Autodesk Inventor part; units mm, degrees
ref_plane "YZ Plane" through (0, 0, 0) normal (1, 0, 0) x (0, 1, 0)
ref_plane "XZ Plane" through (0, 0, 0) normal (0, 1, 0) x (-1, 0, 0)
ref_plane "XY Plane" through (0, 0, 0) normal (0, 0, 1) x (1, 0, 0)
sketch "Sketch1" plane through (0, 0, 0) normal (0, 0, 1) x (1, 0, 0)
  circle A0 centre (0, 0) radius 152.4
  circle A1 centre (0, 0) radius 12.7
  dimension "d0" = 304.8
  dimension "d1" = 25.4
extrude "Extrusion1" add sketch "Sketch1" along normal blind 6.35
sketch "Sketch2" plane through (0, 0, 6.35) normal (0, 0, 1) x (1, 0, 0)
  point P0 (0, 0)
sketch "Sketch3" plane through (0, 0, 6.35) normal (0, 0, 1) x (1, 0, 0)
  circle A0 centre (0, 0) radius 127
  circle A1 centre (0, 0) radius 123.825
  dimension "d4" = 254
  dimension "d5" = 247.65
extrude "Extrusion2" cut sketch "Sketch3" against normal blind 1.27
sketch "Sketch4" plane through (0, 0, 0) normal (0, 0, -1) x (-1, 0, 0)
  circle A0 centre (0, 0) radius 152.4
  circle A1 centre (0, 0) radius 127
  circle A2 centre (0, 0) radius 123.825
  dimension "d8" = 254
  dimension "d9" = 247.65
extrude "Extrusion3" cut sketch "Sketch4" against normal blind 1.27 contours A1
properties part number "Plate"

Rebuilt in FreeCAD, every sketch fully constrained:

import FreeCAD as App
import Part
import Sketcher
from FreeCAD import Vector
Q = App.Units.Quantity

doc = App.newDocument("Part")
body = doc.addObject("PartDesign::Body", "Body")

# Sketch on XY plane
sketch1 = doc.addObject("Sketcher::SketchObject", "Sketch")
body.addObject(sketch1)
sketch1.AttachmentSupport = (doc.XY_Plane, [""])
sketch1.MapMode = "FlatFace"
sketch1.addGeometry(Part.Circle(Vector(0, 0, 0), Vector(0, 0, 1), 152), False)
sketch1.addGeometry(Part.Circle(Vector(0, 0, 0), Vector(0, 0, 1), 13), False)
sketch1.addConstraint(Sketcher.Constraint("Coincident", 0, 3, -1, 1))
sketch1.addConstraint(Sketcher.Constraint("Coincident", 1, 3, -1, 1))
sketch1.addConstraint(Sketcher.Constraint("Diameter", 0, Q("12 in")))
sketch1.addConstraint(Sketcher.Constraint("Diameter", 1, Q("1 in")))
pad1 = doc.addObject("PartDesign::Pad", "Pad")
body.addObject(pad1)
pad1.Profile = sketch1
pad1.Length = Q("0.25 in")

# Sketch on XY plane
sketch2 = doc.addObject("Sketcher::SketchObject", "Sketch001")
body.addObject(sketch2)
sketch2.AttachmentSupport = (doc.XY_Plane, [""])
sketch2.MapMode = "FlatFace"
sketch2.AttachmentOffset = App.Placement(Vector(0, 0, 0.25 * 25.4), App.Rotation())
sketch2.addGeometry(Part.Circle(Vector(0, 0, 0), Vector(0, 0, 1), 127), False)
sketch2.addGeometry(Part.Circle(Vector(0, 0, 0), Vector(0, 0, 1), 124), False)
sketch2.addConstraint(Sketcher.Constraint("Coincident", 0, 3, -1, 1))
sketch2.addConstraint(Sketcher.Constraint("Coincident", 1, 3, -1, 1))
sketch2.addConstraint(Sketcher.Constraint("Diameter", 0, Q("10 in")))
sketch2.addConstraint(Sketcher.Constraint("Diameter", 1, Q("9.75 in")))
pocket1 = doc.addObject("PartDesign::Pocket", "Pocket")
body.addObject(pocket1)
pocket1.Profile = sketch2
pocket1.Length = Q("0.05 in")

# Sketch on XY plane
sketch3 = doc.addObject("Sketcher::SketchObject", "Sketch002")
body.addObject(sketch3)
sketch3.AttachmentSupport = (doc.XY_Plane, [""])
sketch3.MapMode = "FlatFace"
sketch3.addGeometry(Part.Circle(Vector(0, 0, 0), Vector(0, 0, 1), 127), False)
sketch3.addGeometry(Part.Circle(Vector(0, 0, 0), Vector(0, 0, 1), 124), False)
sketch3.addConstraint(Sketcher.Constraint("Coincident", 0, 3, -1, 1))
sketch3.addConstraint(Sketcher.Constraint("Coincident", 1, 3, -1, 1))
sketch3.addConstraint(Sketcher.Constraint("Diameter", 0, Q("10 in")))
sketch3.addConstraint(Sketcher.Constraint("Diameter", 1, Q("9.75 in")))
pocket2 = doc.addObject("PartDesign::Pocket", "Pocket001")
body.addObject(pocket2)
pocket2.Profile = sketch3
pocket2.Length = Q("0.05 in")
pocket2.Reversed = True

doc.recompute()
